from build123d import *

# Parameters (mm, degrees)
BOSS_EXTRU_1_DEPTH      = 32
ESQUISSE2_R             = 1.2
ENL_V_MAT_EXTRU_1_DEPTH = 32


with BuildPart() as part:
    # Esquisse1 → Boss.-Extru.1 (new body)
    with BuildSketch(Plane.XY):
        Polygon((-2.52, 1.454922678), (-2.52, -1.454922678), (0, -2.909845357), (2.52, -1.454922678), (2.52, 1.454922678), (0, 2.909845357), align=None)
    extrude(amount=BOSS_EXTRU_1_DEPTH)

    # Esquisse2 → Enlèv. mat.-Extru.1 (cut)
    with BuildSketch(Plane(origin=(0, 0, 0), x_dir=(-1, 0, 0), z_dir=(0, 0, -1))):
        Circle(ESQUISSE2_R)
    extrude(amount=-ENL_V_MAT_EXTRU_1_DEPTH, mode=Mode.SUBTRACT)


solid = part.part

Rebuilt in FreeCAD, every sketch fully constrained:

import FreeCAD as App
import Part
import Sketcher
from FreeCAD import Vector
Q = App.Units.Quantity

doc = App.newDocument("Part")
body = doc.addObject("PartDesign::Body", "Body")

sketch1 = doc.addObject("Sketcher::SketchObject", "Sketch")
body.addObject(sketch1)
sketch1.AttachmentSupport = (doc.XY_Plane, [""])
sketch1.MapMode = "FlatFace"
sketch1.addGeometry([
    Part.LineSegment(Vector(-2.52, 1.454923, 0), Vector(-2.52, -1.454923, 0)),
    Part.LineSegment(Vector(-2.52, -1.454923, 0), Vector(0, -2.909845, 0)),
    Part.LineSegment(Vector(0, -2.909845, 0), Vector(2.52, -1.454923, 0)),
    Part.LineSegment(Vector(2.52, -1.454923, 0), Vector(2.52, 1.454923, 0)),
    Part.LineSegment(Vector(2.52, 1.454923, 0), Vector(0, 2.909845, 0)),
    Part.LineSegment(Vector(0, 2.909845, 0), Vector(-2.52, 1.454923, 0)),
], False)
sketch1.addConstraint([
    Sketcher.Constraint("Coincident", 0, 2, 1, 1),
    Sketcher.Constraint("Coincident", 1, 2, 2, 1),
    Sketcher.Constraint("Coincident", 2, 2, 3, 1),
    Sketcher.Constraint("Coincident", 3, 2, 4, 1),
    Sketcher.Constraint("Coincident", 4, 2, 5, 1),
    Sketcher.Constraint("Coincident", 5, 2, 0, 1),
    Sketcher.Constraint("Vertical", 0),
    Sketcher.Constraint("Vertical", 3),
    Sketcher.Constraint("Symmetric", 0, 2, 3, 2, -1, 1),
    Sketcher.Constraint("Symmetric", 1, 2, 4, 2, -1, 1),
    Sketcher.Constraint("PointOnObject", 1, 2, -2),
    Sketcher.Constraint("Parallel", 2, 5),
    Sketcher.Constraint("Horizontal", 0, 2, 2, 2),
    Sketcher.Constraint("Angle", 1, Q("-30 deg")),
    Sketcher.Constraint("DistanceX", 0, 2, -1, 1, 2.52),
    Sketcher.Constraint("DistanceY", 0, 2, 0, 1, 2.909845),
])
pad1 = doc.addObject("PartDesign::Pad", "Pad")
body.addObject(pad1)
pad1.Profile = sketch1
pad1.Length = 32

sketch2 = doc.addObject("Sketcher::SketchObject", "Sketch001")
body.addObject(sketch2)
sketch2.AttachmentSupport = (doc.XY_Plane, [""])
sketch2.MapMode = "FlatFace"
sketch2.addGeometry(Part.Circle(Vector(0, 0, 0), Vector(0, 0, 1), 1.2), False)
sketch2.addConstraint([
    Sketcher.Constraint("Coincident", 0, 3, -1, 1),
    Sketcher.Constraint("Diameter", 0, 2.4),
])
pocket1 = doc.addObject("PartDesign::Pocket", "Pocket")
body.addObject(pocket1)
pocket1.Profile = sketch2
pocket1.Length = 32
pocket1.Reversed = True

doc.recompute()
